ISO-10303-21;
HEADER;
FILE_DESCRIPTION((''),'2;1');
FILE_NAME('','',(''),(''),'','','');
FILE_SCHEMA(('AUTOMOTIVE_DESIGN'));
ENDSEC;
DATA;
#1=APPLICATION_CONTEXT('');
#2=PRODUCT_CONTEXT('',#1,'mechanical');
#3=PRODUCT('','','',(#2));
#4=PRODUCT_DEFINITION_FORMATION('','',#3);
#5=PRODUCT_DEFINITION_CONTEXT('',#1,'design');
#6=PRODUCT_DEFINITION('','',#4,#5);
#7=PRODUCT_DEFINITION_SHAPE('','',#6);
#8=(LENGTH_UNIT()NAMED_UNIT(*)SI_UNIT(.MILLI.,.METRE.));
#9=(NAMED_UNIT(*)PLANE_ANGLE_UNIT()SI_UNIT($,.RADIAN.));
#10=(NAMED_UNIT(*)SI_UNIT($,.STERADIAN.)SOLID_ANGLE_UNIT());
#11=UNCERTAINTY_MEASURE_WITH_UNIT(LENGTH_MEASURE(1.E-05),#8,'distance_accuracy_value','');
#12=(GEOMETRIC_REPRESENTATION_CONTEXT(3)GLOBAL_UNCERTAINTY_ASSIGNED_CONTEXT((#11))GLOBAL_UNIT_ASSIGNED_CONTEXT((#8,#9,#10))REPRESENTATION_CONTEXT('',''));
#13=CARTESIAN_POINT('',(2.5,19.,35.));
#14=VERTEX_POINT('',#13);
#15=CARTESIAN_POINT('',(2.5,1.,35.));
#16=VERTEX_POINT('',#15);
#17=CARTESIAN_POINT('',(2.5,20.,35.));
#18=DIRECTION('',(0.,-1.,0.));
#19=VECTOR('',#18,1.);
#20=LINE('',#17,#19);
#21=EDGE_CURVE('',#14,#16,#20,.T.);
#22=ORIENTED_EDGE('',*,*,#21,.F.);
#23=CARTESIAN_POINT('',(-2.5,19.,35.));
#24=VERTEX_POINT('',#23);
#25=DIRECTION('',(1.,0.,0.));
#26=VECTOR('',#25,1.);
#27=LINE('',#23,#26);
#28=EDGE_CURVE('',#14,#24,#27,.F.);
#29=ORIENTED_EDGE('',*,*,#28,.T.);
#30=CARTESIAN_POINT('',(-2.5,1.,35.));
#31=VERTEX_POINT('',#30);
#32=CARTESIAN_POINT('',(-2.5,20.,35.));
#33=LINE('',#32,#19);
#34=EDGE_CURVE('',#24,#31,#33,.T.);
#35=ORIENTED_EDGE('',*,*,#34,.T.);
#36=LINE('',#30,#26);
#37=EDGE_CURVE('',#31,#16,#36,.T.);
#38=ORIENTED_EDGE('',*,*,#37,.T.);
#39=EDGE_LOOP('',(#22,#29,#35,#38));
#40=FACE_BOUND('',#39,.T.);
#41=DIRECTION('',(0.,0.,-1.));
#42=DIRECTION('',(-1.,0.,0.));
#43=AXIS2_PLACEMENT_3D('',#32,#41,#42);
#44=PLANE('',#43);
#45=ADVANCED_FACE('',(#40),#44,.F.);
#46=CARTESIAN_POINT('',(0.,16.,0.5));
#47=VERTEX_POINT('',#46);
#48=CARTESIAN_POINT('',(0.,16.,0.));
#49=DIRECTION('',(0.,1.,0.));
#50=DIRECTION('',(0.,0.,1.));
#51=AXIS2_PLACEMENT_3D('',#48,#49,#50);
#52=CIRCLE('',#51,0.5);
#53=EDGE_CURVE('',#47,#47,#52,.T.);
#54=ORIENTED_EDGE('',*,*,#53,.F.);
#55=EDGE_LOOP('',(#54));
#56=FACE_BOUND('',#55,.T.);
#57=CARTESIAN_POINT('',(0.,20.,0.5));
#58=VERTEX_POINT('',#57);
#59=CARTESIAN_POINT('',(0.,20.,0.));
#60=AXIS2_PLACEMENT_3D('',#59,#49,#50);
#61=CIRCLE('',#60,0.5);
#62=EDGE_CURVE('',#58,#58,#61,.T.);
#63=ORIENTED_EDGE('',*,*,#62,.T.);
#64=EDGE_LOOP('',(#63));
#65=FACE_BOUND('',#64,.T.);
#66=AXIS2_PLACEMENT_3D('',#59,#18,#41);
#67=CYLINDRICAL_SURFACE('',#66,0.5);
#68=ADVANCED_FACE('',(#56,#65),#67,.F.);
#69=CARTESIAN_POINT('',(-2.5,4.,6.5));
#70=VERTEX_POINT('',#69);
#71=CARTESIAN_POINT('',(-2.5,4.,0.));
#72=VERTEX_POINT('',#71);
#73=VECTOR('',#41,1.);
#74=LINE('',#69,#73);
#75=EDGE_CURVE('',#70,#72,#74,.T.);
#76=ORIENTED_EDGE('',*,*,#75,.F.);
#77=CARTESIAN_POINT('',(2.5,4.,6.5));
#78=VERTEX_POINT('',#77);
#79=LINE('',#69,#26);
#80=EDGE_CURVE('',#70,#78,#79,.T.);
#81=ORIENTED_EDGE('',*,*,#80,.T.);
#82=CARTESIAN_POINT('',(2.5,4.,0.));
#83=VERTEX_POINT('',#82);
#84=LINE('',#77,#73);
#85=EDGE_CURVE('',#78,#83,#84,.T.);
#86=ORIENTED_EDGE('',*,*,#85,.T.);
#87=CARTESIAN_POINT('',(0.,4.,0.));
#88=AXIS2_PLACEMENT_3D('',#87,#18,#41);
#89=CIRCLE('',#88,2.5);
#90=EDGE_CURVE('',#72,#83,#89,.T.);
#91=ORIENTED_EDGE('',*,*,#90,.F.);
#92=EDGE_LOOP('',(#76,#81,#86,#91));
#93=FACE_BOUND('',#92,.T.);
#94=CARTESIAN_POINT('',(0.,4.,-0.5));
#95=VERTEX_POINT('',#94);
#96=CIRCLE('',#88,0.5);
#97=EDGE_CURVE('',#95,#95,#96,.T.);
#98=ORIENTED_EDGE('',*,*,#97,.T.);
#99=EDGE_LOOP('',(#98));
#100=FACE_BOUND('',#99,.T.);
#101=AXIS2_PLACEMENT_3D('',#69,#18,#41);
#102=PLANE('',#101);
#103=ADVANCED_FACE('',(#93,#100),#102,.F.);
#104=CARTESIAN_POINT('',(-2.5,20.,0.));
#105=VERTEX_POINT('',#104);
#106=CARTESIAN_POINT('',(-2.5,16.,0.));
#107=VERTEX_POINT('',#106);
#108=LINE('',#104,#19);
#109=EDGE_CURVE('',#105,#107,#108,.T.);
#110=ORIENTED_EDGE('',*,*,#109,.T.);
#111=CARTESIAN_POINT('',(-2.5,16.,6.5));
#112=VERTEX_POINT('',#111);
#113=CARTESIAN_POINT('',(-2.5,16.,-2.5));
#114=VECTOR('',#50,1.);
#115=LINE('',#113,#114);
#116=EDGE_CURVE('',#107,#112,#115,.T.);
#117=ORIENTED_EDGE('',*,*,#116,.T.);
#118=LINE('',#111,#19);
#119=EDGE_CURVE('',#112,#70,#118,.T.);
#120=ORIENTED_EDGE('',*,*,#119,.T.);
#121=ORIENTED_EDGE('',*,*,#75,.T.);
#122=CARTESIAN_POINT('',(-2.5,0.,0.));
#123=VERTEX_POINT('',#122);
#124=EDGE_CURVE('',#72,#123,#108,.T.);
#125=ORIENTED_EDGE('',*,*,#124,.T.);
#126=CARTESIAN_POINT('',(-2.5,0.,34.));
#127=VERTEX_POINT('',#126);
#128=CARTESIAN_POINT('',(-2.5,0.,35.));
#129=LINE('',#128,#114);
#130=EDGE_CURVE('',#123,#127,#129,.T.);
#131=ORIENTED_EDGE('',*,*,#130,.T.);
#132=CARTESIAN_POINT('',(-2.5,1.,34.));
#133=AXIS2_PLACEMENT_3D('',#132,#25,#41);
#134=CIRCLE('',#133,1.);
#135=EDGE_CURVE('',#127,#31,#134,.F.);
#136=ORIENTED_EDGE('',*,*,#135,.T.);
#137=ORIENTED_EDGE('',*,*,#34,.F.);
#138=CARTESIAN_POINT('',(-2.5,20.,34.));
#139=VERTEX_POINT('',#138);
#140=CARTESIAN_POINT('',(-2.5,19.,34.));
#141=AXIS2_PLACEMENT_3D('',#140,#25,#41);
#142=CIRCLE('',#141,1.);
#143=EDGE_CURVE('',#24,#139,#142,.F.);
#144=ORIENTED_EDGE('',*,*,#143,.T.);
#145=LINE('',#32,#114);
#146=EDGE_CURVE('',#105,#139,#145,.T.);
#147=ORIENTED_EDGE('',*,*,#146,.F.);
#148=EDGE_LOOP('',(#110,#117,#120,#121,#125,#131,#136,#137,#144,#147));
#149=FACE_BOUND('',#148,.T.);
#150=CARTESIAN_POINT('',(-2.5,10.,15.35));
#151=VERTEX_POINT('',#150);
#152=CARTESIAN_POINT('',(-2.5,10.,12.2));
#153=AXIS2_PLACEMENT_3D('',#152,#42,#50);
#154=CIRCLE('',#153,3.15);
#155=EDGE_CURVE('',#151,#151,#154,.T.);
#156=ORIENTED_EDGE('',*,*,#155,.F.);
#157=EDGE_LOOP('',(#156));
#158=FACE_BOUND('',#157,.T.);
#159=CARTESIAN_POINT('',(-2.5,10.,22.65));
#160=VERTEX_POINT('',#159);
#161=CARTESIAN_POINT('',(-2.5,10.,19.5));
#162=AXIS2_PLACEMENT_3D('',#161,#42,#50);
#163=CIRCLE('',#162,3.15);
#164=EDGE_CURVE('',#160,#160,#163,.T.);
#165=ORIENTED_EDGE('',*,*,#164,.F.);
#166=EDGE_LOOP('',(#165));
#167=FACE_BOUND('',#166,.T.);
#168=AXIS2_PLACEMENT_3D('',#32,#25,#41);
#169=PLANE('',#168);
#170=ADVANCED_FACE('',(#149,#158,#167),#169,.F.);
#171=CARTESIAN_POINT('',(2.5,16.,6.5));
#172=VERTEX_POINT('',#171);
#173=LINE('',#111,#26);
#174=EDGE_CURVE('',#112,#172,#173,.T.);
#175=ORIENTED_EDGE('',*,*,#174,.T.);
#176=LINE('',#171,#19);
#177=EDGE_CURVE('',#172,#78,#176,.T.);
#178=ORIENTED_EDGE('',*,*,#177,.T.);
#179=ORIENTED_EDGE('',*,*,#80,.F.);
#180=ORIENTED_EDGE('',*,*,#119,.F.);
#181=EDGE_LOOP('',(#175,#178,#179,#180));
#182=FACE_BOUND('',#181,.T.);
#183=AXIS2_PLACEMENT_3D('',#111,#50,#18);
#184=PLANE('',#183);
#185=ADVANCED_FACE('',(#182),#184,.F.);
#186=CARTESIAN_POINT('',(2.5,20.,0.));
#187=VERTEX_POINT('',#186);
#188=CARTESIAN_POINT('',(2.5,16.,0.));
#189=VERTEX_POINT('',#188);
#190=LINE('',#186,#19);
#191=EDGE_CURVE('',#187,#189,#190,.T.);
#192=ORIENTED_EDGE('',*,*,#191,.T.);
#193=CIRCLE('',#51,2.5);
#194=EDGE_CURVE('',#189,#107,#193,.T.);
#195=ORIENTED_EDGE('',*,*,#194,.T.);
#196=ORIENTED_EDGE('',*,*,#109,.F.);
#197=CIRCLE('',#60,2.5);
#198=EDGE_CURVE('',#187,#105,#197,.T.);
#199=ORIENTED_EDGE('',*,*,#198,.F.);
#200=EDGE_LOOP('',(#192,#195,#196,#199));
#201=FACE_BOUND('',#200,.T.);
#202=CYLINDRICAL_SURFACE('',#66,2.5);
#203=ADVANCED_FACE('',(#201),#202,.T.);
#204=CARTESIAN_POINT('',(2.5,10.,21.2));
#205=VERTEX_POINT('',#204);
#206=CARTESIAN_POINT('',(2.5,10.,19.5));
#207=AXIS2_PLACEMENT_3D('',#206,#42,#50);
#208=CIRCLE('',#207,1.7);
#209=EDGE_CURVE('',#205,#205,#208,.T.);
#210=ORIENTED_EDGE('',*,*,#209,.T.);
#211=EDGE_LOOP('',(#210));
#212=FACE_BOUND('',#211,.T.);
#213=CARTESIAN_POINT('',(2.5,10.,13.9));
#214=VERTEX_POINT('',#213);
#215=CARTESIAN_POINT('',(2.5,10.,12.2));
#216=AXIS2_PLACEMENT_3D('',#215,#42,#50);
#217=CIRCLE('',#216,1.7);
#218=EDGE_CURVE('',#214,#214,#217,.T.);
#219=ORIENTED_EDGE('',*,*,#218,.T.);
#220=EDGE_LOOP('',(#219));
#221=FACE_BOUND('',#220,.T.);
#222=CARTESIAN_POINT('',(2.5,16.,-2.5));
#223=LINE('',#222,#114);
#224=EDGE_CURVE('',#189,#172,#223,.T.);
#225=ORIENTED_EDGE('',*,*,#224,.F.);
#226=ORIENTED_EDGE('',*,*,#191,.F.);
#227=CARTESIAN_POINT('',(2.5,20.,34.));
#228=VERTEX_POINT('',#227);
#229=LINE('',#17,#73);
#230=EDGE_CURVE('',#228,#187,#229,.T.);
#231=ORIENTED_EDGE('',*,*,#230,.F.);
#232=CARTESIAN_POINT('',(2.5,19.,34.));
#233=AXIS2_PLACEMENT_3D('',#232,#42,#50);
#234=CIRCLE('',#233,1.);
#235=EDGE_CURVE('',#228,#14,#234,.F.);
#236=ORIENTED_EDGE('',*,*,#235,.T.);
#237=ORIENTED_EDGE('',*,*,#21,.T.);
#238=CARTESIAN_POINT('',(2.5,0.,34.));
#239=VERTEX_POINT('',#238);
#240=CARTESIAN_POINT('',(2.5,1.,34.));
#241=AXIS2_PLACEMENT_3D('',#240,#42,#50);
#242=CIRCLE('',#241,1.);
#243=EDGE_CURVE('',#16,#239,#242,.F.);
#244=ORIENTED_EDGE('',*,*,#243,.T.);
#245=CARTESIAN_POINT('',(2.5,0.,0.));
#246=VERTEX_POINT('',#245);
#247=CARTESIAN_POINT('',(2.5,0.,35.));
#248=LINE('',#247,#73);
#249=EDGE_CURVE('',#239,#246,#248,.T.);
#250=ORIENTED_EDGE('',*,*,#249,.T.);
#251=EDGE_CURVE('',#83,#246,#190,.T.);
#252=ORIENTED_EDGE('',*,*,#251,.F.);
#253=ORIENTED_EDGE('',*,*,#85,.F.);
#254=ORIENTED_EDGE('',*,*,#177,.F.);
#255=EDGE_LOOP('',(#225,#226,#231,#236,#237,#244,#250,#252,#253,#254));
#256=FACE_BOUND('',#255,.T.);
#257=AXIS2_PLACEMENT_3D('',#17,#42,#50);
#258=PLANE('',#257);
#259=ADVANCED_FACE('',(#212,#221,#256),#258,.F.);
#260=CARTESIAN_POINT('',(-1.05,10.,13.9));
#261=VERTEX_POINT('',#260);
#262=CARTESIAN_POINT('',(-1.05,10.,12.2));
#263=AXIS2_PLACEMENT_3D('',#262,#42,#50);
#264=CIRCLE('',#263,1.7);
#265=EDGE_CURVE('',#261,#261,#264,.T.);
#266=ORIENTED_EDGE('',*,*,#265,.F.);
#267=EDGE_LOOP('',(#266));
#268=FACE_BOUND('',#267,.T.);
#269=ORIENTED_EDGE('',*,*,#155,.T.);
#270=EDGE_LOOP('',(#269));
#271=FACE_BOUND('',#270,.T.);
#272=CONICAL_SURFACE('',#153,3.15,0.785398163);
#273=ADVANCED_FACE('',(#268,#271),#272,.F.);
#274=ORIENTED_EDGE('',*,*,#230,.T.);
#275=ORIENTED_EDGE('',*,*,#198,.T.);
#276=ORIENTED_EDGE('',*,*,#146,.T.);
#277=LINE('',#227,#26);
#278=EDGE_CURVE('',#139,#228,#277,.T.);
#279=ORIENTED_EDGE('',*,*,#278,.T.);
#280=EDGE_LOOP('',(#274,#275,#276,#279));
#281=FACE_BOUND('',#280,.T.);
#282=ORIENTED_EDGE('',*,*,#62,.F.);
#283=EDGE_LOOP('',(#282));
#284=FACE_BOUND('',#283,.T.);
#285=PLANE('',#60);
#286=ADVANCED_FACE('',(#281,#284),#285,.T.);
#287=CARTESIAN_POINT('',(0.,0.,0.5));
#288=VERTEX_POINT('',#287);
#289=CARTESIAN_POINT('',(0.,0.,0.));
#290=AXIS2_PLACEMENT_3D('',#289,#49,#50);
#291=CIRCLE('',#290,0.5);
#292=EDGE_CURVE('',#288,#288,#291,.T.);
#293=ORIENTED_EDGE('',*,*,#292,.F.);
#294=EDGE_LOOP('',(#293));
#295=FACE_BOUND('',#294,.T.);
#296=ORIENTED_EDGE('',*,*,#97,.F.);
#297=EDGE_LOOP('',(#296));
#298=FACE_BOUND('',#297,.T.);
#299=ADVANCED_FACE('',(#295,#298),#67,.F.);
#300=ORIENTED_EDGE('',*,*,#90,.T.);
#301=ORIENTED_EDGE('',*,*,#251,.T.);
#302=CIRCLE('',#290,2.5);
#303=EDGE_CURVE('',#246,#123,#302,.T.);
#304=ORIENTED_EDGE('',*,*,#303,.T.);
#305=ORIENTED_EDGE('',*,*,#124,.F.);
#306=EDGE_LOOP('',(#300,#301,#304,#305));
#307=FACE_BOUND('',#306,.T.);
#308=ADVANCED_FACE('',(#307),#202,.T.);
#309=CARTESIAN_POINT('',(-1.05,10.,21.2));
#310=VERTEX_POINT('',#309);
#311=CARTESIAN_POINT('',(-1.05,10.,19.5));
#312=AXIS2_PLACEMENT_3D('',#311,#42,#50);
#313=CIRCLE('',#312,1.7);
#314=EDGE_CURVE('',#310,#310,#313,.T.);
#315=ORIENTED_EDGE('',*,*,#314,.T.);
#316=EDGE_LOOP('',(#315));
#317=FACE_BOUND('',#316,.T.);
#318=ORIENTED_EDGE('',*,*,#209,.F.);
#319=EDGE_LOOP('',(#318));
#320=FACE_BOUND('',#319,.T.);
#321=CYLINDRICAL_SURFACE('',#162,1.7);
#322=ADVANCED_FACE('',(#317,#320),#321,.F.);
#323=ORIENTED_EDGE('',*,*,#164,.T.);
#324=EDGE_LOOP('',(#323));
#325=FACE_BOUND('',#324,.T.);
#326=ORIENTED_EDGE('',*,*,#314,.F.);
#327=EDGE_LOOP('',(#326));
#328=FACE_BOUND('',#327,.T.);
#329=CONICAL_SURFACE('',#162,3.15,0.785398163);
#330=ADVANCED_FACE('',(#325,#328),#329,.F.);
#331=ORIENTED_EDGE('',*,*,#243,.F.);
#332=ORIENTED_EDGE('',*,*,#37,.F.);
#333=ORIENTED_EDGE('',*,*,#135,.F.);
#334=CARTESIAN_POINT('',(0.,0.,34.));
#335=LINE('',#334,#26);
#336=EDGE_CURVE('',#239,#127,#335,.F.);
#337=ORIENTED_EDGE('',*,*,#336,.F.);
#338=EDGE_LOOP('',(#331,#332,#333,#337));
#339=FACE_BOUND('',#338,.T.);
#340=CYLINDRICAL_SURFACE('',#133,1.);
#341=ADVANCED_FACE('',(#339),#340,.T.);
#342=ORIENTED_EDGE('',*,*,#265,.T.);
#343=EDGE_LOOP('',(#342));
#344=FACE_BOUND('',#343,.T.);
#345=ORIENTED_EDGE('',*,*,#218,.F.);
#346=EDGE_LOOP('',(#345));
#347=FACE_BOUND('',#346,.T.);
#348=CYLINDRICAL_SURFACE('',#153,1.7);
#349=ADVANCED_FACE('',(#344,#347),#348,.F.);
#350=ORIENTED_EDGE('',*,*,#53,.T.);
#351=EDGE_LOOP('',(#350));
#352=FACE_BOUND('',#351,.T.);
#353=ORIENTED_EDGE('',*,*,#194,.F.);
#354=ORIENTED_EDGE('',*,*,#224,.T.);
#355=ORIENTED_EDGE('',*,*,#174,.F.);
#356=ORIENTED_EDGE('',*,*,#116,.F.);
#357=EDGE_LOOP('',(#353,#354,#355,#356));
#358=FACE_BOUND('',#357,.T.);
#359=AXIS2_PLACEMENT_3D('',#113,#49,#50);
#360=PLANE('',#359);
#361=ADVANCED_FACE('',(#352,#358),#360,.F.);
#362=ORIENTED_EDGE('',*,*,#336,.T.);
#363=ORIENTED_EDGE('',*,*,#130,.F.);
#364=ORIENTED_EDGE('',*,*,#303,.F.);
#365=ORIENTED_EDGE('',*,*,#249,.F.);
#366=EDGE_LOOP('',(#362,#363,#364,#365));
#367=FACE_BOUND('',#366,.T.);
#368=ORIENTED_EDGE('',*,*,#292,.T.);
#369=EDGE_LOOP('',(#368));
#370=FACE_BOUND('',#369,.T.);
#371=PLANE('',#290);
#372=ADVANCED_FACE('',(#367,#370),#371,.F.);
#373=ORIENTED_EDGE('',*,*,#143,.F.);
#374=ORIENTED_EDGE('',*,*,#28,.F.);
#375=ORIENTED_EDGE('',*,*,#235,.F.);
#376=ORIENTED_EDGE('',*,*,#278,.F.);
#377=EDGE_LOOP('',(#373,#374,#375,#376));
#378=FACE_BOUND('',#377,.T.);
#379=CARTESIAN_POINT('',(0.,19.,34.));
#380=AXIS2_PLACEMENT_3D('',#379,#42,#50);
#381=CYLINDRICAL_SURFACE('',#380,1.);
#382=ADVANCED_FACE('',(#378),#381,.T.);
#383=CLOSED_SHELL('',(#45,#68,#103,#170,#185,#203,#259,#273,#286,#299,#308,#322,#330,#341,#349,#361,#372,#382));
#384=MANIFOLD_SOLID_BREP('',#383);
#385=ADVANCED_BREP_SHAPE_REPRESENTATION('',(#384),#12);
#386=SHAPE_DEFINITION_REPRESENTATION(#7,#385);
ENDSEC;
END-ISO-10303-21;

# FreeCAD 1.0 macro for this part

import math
import FreeCAD as App
import Part
import Sketcher

V = App.Vector
Q = App.Units.Quantity


def edges_at(feature, points):
    """Names of the edges that pass closest to the given points."""
    edges = feature.Shape.Edges
    near = lambda p: min(range(len(edges)), key=lambda i: edges[i].distToShape(Part.Vertex(*p))[0])
    return sorted({f"Edge{near(p) + 1}" for p in points})


def add_polygon(sketch, points):
    """Adds a closed chain of lines whose ends are joined by coincident constraints."""
    first, n = sketch.GeometryCount, len(points)
    for a, b in zip(points, points[1:] + points[:1]):
        sketch.addGeometry(Part.LineSegment(App.Vector(*a, 0), App.Vector(*b, 0)), False)
    for i in range(n):
        sketch.addConstraint(Sketcher.Constraint("Coincident", first + i, 2, first + (i + 1) % n, 1))

doc = App.newDocument("Part")
body = doc.addObject("PartDesign::Body", "Body")

sketch1 = doc.addObject("Sketcher::SketchObject", "Sketch")
body.addObject(sketch1)
sketch1.AttachmentSupport = (doc.XZ_Plane, [""])
sketch1.MapMode = "FlatFace"
sketch1.addGeometry([
    Part.LineSegment(V(-2.5, 35, 0), V(2.5, 35, 0)),
    Part.LineSegment(V(2.5, 35, 0), V(2.5, 0, 0)),
    Part.ArcOfCircle(Part.Circle(V(0, 0, 0), V(0, 0, 1), 2.5), math.radians(180), math.radians(360)),
    Part.LineSegment(V(-2.5, 0, 0), V(-2.5, 35, 0)),
    Part.Circle(V(0, 0, 0), V(0, 0, 1), 0.5),
], False)
sketch1.addConstraint([
    Sketcher.Constraint("Coincident", 0, 2, 1, 1),
    Sketcher.Constraint("Tangent", 1, 2, 2, 2),
    Sketcher.Constraint("Tangent", 2, 1, 3, 1),
    Sketcher.Constraint("Coincident", 3, 2, 0, 1),
    Sketcher.Constraint("Horizontal", 0),
    Sketcher.Constraint("Vertical", 1),
    Sketcher.Constraint("Vertical", 3),
    Sketcher.Constraint("Coincident", 2, 3, -1, 1),
    Sketcher.Constraint("Coincident", 4, 3, -1, 1),
    Sketcher.Constraint("Diameter", 4, Q("1 mm")),
    Sketcher.Constraint("Radius", 2, Q("2.5 mm")),
    Sketcher.Constraint("DistanceY", 1, 2, 1, 1, Q("35 mm")),
])
pad1 = doc.addObject("PartDesign::Pad", "Pad")
body.addObject(pad1)
pad1.Profile = sketch1
pad1.Length = 20
pad1.Reversed = True

sketch2 = doc.addObject("Sketcher::SketchObject", "Sketch001")
body.addObject(sketch2)
sketch2.AttachmentSupport = (doc.YZ_Plane, [""])
sketch2.MapMode = "FlatFace"
add_polygon(sketch2, [(16, 6), (4, 6), (4, -2), (16, -2)])
sketch2.addConstraint([
    Sketcher.Constraint("Horizontal", 0),
    Sketcher.Constraint("Vertical", 1),
    Sketcher.Constraint("Horizontal", 2),
    Sketcher.Constraint("Vertical", 3),
    Sketcher.Constraint("DistanceX", 0, 2, 0, 1, Q("12 mm")),
    Sketcher.Constraint("DistanceY", 1, 2, 1, 1, Q("9 mm")),
    Sketcher.Constraint("DistanceX", -1, 1, 0, 2, Q("4 mm")),
    Sketcher.Constraint("DistanceY", -1, 1, 0, 2, Q("6.5 mm")),
])
pocket1 = doc.addObject("PartDesign::Pocket", "Pocket")
body.addObject(pocket1)
pocket1.Profile = sketch2
pocket1.Type = "ThroughAll"
pocket1.Midplane = True
doc.recompute()

fillet = doc.addObject("PartDesign::Fillet", "Fillet")
body.addObject(fillet)
fillet.Base = (pocket1, edges_at(pocket1, [(0, 0, 35), (0, 20, 35)]))
fillet.Radius = 1

sketch3 = doc.addObject("Sketcher::SketchObject", "Sketch002")
body.addObject(sketch3)
sketch3.AttachmentSupport = (doc.YZ_Plane, [""])
sketch3.MapMode = "FlatFace"
sketch3.AttachmentOffset = App.Placement(V(0, 0, -2.5), App.Rotation())
sketch3.addGeometry([
    Part.Circle(V(10, 12.2, 0), V(0, 0, 1), 1.7),
    Part.Circle(V(10, 19.5, 0), V(0, 0, 1), 1.7),
], False)
sketch3.addConstraint([
    Sketcher.Constraint("Equal", 0, 1),
    Sketcher.Constraint("Vertical", 0, 3, 1, 3),
    Sketcher.Constraint("Diameter", 0, Q("3.4 mm")),
    Sketcher.Constraint("DistanceX", -1, 1, 0, 3, Q("10 mm")),
    Sketcher.Constraint("DistanceY", -1, 1, 0, 3, Q("12.2 mm")),
    Sketcher.Constraint("DistanceY", -1, 1, 1, 3, Q("19.5 mm")),
])
doc.recompute()
hole = doc.addObject("PartDesign::Hole", "Hole")
body.addObject(hole)
hole.Profile = sketch3
hole.ThreadType = "None"
hole.Diameter = 3.4
hole.DepthType = "ThroughAll"
hole.HoleCutType = "Countersink"
hole.HoleCutDiameter = 6.3
hole.HoleCutCountersinkAngle = 90
hole.Reversed = True

doc.recompute()
